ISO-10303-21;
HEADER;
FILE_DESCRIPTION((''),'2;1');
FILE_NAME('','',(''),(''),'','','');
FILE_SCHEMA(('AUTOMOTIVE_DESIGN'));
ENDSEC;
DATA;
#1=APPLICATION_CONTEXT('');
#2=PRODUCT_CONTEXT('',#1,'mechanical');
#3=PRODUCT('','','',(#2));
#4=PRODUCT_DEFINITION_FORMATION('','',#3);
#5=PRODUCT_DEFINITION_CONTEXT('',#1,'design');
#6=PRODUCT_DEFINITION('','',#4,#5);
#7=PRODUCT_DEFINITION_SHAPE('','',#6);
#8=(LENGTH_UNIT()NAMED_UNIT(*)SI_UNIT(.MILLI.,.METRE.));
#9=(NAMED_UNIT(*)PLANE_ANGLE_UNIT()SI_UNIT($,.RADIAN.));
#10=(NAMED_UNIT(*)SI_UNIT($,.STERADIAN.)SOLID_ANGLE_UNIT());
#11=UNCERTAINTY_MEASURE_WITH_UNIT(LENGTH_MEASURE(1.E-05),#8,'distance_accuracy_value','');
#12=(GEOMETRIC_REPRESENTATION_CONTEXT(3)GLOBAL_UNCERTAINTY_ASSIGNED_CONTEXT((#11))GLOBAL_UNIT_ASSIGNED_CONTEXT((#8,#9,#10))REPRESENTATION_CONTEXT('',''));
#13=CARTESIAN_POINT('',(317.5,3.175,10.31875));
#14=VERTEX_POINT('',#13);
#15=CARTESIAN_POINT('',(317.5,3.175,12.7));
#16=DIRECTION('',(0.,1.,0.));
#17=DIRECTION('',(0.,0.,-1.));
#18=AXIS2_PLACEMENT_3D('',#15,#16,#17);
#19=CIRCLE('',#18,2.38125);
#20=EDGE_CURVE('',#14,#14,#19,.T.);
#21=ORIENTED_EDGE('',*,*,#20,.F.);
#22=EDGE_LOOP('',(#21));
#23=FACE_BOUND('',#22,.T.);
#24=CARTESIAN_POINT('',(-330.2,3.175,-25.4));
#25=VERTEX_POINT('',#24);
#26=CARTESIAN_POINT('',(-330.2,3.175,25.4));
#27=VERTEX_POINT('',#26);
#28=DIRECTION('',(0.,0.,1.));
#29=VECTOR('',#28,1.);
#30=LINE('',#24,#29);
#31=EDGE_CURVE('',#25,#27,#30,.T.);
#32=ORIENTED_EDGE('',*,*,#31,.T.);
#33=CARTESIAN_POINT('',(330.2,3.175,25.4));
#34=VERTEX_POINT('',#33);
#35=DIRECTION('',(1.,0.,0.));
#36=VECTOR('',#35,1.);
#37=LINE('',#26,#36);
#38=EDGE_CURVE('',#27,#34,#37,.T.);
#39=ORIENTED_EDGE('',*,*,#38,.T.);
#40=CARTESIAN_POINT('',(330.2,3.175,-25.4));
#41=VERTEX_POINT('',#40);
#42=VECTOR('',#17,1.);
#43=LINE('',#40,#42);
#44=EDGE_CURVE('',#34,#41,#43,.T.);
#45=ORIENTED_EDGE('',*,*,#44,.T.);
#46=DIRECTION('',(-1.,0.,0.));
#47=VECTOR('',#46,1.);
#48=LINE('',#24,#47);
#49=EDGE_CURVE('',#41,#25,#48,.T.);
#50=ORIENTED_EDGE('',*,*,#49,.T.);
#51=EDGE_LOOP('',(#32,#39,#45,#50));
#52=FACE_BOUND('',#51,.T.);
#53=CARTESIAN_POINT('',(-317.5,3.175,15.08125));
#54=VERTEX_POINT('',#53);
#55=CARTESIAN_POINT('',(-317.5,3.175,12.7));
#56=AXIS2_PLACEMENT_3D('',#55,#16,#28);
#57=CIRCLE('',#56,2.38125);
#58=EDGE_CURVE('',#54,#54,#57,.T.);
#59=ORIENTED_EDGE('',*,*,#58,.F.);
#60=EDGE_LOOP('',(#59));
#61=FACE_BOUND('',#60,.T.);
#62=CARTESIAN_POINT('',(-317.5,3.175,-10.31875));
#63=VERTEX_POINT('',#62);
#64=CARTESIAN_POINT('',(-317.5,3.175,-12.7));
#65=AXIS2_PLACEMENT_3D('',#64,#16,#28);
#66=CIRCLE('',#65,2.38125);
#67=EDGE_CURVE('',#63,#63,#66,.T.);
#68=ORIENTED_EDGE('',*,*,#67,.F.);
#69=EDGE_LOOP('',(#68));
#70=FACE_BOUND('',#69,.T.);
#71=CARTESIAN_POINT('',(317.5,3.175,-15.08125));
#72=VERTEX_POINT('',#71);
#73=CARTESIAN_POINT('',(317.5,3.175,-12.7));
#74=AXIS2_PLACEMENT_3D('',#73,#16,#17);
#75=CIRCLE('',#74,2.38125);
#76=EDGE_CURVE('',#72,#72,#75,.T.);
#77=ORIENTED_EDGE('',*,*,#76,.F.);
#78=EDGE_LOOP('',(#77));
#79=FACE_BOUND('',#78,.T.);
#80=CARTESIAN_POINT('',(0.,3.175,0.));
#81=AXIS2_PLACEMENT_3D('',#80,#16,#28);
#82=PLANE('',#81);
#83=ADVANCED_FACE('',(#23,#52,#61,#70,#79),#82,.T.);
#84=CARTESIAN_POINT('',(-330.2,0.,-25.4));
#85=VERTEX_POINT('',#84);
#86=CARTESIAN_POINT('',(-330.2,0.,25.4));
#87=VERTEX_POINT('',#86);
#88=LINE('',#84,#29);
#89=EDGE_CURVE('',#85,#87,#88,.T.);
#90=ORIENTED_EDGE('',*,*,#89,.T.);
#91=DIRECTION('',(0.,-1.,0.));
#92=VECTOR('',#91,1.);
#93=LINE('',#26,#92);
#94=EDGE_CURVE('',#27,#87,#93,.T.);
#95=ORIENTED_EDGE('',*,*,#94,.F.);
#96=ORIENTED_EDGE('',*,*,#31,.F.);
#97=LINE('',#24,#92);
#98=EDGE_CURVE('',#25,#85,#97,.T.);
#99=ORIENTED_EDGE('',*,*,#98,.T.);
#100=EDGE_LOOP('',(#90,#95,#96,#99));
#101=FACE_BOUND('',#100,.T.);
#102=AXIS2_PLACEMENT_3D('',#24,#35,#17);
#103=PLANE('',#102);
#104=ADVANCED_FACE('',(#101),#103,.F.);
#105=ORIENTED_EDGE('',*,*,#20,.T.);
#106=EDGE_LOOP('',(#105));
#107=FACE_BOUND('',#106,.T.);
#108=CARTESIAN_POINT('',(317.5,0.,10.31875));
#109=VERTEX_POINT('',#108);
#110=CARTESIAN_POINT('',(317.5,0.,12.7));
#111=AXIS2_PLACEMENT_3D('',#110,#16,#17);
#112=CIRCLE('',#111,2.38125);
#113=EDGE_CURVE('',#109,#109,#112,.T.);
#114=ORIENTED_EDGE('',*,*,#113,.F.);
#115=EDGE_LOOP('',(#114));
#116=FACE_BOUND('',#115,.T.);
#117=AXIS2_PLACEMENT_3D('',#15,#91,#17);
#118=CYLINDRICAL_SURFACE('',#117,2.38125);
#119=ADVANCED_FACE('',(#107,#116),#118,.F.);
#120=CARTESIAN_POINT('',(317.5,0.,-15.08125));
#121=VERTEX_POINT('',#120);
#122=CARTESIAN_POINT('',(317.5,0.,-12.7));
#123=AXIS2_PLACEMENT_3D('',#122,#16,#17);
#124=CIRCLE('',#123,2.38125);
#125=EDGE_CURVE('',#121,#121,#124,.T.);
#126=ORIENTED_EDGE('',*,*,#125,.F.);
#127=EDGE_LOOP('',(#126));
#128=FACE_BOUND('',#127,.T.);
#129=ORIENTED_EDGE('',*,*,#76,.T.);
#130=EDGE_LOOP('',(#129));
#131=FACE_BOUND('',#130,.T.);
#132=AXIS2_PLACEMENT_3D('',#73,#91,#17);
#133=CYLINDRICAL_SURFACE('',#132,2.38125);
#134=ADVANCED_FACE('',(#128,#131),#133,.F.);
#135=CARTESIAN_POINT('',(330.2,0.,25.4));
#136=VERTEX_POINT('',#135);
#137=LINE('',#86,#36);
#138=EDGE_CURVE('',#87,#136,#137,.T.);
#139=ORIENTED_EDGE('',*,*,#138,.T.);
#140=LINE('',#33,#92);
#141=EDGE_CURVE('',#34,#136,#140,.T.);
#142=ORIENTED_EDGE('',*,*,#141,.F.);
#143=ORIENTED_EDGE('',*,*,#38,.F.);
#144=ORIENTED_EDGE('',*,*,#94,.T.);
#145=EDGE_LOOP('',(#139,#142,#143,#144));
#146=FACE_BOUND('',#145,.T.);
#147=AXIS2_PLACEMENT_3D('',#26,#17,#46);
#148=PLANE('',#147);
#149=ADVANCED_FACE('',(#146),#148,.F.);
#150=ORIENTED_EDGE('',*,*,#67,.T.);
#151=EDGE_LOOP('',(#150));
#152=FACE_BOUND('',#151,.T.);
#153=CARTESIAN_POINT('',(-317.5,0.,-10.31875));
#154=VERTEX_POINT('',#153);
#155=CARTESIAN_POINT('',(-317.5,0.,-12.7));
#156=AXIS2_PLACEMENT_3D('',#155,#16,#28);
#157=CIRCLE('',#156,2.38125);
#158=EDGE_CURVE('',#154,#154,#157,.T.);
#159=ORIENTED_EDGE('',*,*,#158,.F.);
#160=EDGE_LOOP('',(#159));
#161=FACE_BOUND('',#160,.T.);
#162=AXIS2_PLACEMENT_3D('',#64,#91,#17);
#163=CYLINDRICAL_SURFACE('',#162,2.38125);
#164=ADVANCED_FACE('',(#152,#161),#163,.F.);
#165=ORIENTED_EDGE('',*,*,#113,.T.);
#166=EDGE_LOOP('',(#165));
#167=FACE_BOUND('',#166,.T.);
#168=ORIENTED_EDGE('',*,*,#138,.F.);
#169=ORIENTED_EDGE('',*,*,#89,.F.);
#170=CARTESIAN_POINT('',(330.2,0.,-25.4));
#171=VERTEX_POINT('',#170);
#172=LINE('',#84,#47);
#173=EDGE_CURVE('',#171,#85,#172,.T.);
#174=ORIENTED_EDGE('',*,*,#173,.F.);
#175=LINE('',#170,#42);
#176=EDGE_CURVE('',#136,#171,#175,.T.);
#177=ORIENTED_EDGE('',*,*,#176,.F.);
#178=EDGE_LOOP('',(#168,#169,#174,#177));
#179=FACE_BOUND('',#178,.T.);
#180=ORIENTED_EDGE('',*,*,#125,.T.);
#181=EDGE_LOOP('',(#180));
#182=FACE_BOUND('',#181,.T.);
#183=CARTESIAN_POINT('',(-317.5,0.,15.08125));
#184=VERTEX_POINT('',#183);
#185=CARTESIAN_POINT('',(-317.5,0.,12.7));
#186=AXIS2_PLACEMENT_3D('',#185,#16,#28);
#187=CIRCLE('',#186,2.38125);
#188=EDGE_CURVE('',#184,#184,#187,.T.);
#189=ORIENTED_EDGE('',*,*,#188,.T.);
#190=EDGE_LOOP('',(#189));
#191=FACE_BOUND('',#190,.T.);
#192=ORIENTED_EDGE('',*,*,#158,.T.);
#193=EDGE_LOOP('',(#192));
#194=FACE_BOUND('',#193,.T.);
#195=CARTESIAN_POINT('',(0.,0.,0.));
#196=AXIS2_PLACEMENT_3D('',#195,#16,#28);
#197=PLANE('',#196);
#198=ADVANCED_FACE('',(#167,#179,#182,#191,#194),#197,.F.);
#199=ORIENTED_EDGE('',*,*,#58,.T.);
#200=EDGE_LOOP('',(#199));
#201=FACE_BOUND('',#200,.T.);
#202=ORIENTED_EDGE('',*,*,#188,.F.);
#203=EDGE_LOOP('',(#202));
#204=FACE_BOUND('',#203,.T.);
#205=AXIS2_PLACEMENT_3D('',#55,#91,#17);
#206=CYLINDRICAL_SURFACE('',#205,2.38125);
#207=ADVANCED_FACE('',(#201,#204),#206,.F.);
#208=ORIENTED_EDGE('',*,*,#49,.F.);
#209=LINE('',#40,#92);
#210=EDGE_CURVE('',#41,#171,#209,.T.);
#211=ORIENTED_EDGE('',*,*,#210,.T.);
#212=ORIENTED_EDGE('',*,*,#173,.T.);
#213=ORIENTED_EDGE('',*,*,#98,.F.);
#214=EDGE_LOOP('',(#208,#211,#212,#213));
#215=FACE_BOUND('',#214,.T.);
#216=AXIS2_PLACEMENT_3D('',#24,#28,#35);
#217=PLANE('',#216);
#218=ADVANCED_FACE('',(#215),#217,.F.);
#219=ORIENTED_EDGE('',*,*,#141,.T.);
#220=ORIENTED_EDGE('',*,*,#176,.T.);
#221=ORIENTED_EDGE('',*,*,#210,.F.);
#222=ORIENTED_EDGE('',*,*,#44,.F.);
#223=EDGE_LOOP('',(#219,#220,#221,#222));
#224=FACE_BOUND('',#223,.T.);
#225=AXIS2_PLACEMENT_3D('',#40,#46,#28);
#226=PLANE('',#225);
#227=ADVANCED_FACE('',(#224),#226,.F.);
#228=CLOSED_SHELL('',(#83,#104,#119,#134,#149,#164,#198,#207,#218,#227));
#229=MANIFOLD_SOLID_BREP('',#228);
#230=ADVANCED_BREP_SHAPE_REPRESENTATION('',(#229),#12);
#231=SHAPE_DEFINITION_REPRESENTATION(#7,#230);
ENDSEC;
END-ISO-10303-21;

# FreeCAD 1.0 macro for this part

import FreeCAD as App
import Part
import Sketcher
Q = App.Units.Quantity


def add_polygon(sketch, points):
    """Adds a closed chain of lines whose ends are joined by coincident constraints."""
    first, n = sketch.GeometryCount, len(points)
    for a, b in zip(points, points[1:] + points[:1]):
        sketch.addGeometry(Part.LineSegment(App.Vector(*a, 0), App.Vector(*b, 0)), False)
    for i in range(n):
        sketch.addConstraint(Sketcher.Constraint("Coincident", first + i, 2, first + (i + 1) % n, 1))

doc = App.newDocument("Part")
body = doc.addObject("PartDesign::Body", "Body")

# Sketch on XZ plane
sketch1 = body.newObject("Sketcher::SketchObject", "Sketch")
sketch1.AttachmentSupport = (doc.getObject("XZ_Plane"), [""])
sketch1.MapMode = "FlatFace"
add_polygon(sketch1, [(-330.2, -25.4), (-330.2, 25.4), (330.2, 25.4), (330.2, -25.4)])  # lines 0-3
sketch1.addGeometry(Part.Circle(App.Vector(-317.5, 12.7, 0), App.Vector(0, 0, 1), 2.38125), False)  # 4
sketch1.addGeometry(Part.Circle(App.Vector(317.5, 12.7, 0), App.Vector(0, 0, 1), 2.38125), False)  # 5
sketch1.addGeometry(Part.Circle(App.Vector(-317.5, -12.7, 0), App.Vector(0, 0, 1), 2.38125), False)  # 6
sketch1.addGeometry(Part.Circle(App.Vector(317.5, -12.7, 0), App.Vector(0, 0, 1), 2.38125), False)  # 7
sketch1.addConstraint(Sketcher.Constraint("Vertical", 0))
sketch1.addConstraint(Sketcher.Constraint("Horizontal", 1))
sketch1.addConstraint(Sketcher.Constraint("Vertical", 2))
sketch1.addConstraint(Sketcher.Constraint("Horizontal", 3))
sketch1.addConstraint(Sketcher.Constraint("Equal", 4, 5))
sketch1.addConstraint(Sketcher.Constraint("Equal", 5, 6))
sketch1.addConstraint(Sketcher.Constraint("Equal", 6, 7))
sketch1.addConstraint(Sketcher.Constraint("Symmetric", 5, 3, 6, 3, -1, 1))
sketch1.addConstraint(Sketcher.Constraint("Symmetric", 4, 3, 7, 3, -1, 1))
sketch1.addConstraint(Sketcher.Constraint("Symmetric", 0, 2, 2, 2, -1, 1))
sketch1.addConstraint(Sketcher.Constraint("Symmetric", 4, 3, 5, 3, -2))
sketch1.addConstraint(Sketcher.Constraint("DistanceX", 1, 1, 1, 2, Q("26 in")))
sketch1.addConstraint(Sketcher.Constraint("DistanceY", 0, 1, 0, 2, Q("2 in")))
sketch1.addConstraint(Sketcher.Constraint("Diameter", 4, Q("0.1875 in")))
sketch1.addConstraint(Sketcher.Constraint("DistanceX", 4, 3, 5, 3, Q("25 in")))
sketch1.addConstraint(Sketcher.Constraint("DistanceY", 6, 3, 4, 3, Q("1 in")))
pad1 = body.newObject("PartDesign::Pad", "Pad")
pad1.Profile = sketch1
pad1.Length = Q("0.125 in")
pad1.Reversed = True

doc.recompute()
